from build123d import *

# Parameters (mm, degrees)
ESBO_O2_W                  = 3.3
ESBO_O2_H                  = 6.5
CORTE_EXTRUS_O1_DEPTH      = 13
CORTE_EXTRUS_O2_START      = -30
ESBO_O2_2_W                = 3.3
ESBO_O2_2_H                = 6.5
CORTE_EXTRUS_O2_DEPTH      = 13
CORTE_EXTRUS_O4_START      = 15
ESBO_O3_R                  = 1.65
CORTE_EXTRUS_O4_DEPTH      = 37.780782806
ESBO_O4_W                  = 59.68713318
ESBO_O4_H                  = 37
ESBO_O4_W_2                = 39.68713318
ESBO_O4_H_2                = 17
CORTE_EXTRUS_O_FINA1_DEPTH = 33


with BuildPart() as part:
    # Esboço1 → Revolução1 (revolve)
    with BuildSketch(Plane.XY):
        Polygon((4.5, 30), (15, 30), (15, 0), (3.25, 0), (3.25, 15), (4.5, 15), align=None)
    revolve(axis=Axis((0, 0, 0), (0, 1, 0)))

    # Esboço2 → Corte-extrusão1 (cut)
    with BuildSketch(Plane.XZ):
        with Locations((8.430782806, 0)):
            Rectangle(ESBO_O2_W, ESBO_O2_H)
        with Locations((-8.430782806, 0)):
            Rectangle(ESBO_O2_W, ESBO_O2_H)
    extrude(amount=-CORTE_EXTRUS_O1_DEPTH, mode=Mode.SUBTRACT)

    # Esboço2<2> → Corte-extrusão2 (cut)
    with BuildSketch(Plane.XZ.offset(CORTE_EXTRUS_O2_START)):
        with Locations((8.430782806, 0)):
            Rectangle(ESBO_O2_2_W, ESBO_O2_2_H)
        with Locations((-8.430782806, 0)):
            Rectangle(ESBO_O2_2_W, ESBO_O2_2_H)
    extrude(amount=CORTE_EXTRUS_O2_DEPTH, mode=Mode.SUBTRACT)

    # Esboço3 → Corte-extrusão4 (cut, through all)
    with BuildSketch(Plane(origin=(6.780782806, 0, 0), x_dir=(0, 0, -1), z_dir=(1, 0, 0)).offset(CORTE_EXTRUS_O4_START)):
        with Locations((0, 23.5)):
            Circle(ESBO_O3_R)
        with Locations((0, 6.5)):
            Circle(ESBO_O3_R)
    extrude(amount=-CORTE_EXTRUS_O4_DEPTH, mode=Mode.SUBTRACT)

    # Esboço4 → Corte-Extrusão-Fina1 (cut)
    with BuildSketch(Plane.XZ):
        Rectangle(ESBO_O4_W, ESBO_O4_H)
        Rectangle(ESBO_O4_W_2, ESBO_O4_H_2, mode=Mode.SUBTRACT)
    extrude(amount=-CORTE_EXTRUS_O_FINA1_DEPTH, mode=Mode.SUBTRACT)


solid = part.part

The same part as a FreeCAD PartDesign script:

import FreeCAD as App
import Part
import Sketcher

V = App.Vector

doc = App.newDocument("Part")
body = doc.addObject("PartDesign::Body", "Body")

sketch1 = doc.addObject("Sketcher::SketchObject", "Sketch")
body.addObject(sketch1)
sketch1.AttachmentSupport = (doc.XY_Plane, [""])
sketch1.MapMode = "FlatFace"
sketch1.addGeometry(Part.LineSegment(V(15, 30, 0), V(4.5, 30, 0)), False)
sketch1.addGeometry(Part.LineSegment(V(4.5, 30, 0), V(4.5, 15, 0)), False)
sketch1.addGeometry(Part.LineSegment(V(4.5, 15, 0), V(3.25, 15, 0)), False)
sketch1.addGeometry(Part.LineSegment(V(3.25, 15, 0), V(3.25, 0, 0)), False)
sketch1.addGeometry(Part.LineSegment(V(3.25, 0, 0), V(15, 0, 0)), False)
sketch1.addGeometry(Part.LineSegment(V(15, 0, 0), V(15, 30, 0)), False)
sketch1.addConstraint(Sketcher.Constraint("Coincident", 0, 2, 1, 1))
sketch1.addConstraint(Sketcher.Constraint("Coincident", 1, 2, 2, 1))
sketch1.addConstraint(Sketcher.Constraint("Coincident", 2, 2, 3, 1))
sketch1.addConstraint(Sketcher.Constraint("Coincident", 3, 2, 4, 1))
sketch1.addConstraint(Sketcher.Constraint("Coincident", 4, 2, 5, 1))
sketch1.addConstraint(Sketcher.Constraint("Coincident", 5, 2, 0, 1))
sketch1.addConstraint(Sketcher.Constraint("Horizontal", 0))
sketch1.addConstraint(Sketcher.Constraint("Vertical", 1))
sketch1.addConstraint(Sketcher.Constraint("Horizontal", 2))
sketch1.addConstraint(Sketcher.Constraint("Vertical", 3))
sketch1.addConstraint(Sketcher.Constraint("Horizontal", 4))
sketch1.addConstraint(Sketcher.Constraint("Vertical", 5))
sketch1.addConstraint(Sketcher.Constraint("PointOnObject", 3, 2, -1))
sketch1.addConstraint(Sketcher.Constraint("Equal", 1, 3))
sketch1.addConstraint(Sketcher.Constraint("DistanceY", 1, 2, 1, 1, 15.0))
sketch1.addConstraint(Sketcher.Constraint("DistanceX", 0, 2, 0, 1, 10.5))
sketch1.addConstraint(Sketcher.Constraint("DistanceX", -1, 1, 4, 2, 15.0))
sketch1.addConstraint(Sketcher.Constraint("DistanceX", 2, 2, 2, 1, 1.25))
revolution = doc.addObject("PartDesign::Revolution", "Revolution")
body.addObject(revolution)
revolution.Profile = sketch1
revolution.ReferenceAxis = (sketch1, ["V_Axis"])
revolution.Angle = 360

sketch2 = doc.addObject("Sketcher::SketchObject", "Sketch001")
body.addObject(sketch2)
sketch2.AttachmentSupport = (doc.XZ_Plane, [""])
sketch2.MapMode = "FlatFace"
sketch2.addGeometry(Part.LineSegment(V(6.780783, 3.25, 0), V(6.780783, -3.25, 0)), False)
sketch2.addGeometry(Part.LineSegment(V(6.780783, -3.25, 0), V(10.080783, -3.25, 0)), False)
sketch2.addGeometry(Part.LineSegment(V(10.080783, -3.25, 0), V(10.080783, 3.25, 0)), False)
sketch2.addGeometry(Part.LineSegment(V(10.080783, 3.25, 0), V(6.780783, 3.25, 0)), False)
sketch2.addGeometry(Part.LineSegment(V(-10.080783, 3.25, 0), V(-10.080783, -3.25, 0)), False)
sketch2.addGeometry(Part.LineSegment(V(-10.080783, -3.25, 0), V(-6.780783, -3.25, 0)), False)
sketch2.addGeometry(Part.LineSegment(V(-6.780783, -3.25, 0), V(-6.780783, 3.25, 0)), False)
sketch2.addGeometry(Part.LineSegment(V(-6.780783, 3.25, 0), V(-10.080783, 3.25, 0)), False)
sketch2.addConstraint(Sketcher.Constraint("Coincident", 0, 2, 1, 1))
sketch2.addConstraint(Sketcher.Constraint("Coincident", 1, 2, 2, 1))
sketch2.addConstraint(Sketcher.Constraint("Coincident", 2, 2, 3, 1))
sketch2.addConstraint(Sketcher.Constraint("Coincident", 3, 2, 0, 1))
sketch2.addConstraint(Sketcher.Constraint("Coincident", 4, 2, 5, 1))
sketch2.addConstraint(Sketcher.Constraint("Coincident", 5, 2, 6, 1))
sketch2.addConstraint(Sketcher.Constraint("Coincident", 6, 2, 7, 1))
sketch2.addConstraint(Sketcher.Constraint("Coincident", 7, 2, 4, 1))
sketch2.addConstraint(Sketcher.Constraint("Vertical", 0))
sketch2.addConstraint(Sketcher.Constraint("Horizontal", 1))
sketch2.addConstraint(Sketcher.Constraint("Vertical", 2))
sketch2.addConstraint(Sketcher.Constraint("Horizontal", 3))
sketch2.addConstraint(Sketcher.Constraint("Vertical", 4))
sketch2.addConstraint(Sketcher.Constraint("Horizontal", 5))
sketch2.addConstraint(Sketcher.Constraint("Vertical", 6))
sketch2.addConstraint(Sketcher.Constraint("Horizontal", 7))
sketch2.addConstraint(Sketcher.Constraint("Symmetric", 2, 2, 4, 2, -1, 1))
sketch2.addConstraint(Sketcher.Constraint("Symmetric", 0, 2, 6, 2, -1, 1))
sketch2.addConstraint(Sketcher.Constraint("Horizontal", 1, 2, 4, 2))
sketch2.addConstraint(Sketcher.Constraint("DistanceX", 1, 1, 1, 2, 3.3))
sketch2.addConstraint(Sketcher.Constraint("DistanceY", 0, 2, 0, 1, 6.5))
sketch2.addConstraint(Sketcher.Constraint("DistanceX", -1, 1, 0, 2, 6.780783))
pocket1 = doc.addObject("PartDesign::Pocket", "Pocket")
body.addObject(pocket1)
pocket1.Profile = sketch2
pocket1.Length = 13

sketch3 = doc.addObject("Sketcher::SketchObject", "Sketch002")
body.addObject(sketch3)
sketch3.AttachmentSupport = (doc.XZ_Plane, [""])
sketch3.MapMode = "FlatFace"
sketch3.AttachmentOffset = App.Placement(V(0, 0, -30), App.Rotation())
sketch3.addGeometry(Part.LineSegment(V(6.780783, 3.25, 0), V(6.780783, -3.25, 0)), False)
sketch3.addGeometry(Part.LineSegment(V(6.780783, -3.25, 0), V(10.080783, -3.25, 0)), False)
sketch3.addGeometry(Part.LineSegment(V(10.080783, -3.25, 0), V(10.080783, 3.25, 0)), False)
sketch3.addGeometry(Part.LineSegment(V(10.080783, 3.25, 0), V(6.780783, 3.25, 0)), False)
sketch3.addGeometry(Part.LineSegment(V(-10.080783, 3.25, 0), V(-10.080783, -3.25, 0)), False)
sketch3.addGeometry(Part.LineSegment(V(-10.080783, -3.25, 0), V(-6.780783, -3.25, 0)), False)
sketch3.addGeometry(Part.LineSegment(V(-6.780783, -3.25, 0), V(-6.780783, 3.25, 0)), False)
sketch3.addGeometry(Part.LineSegment(V(-6.780783, 3.25, 0), V(-10.080783, 3.25, 0)), False)
sketch3.addConstraint(Sketcher.Constraint("Coincident", 0, 2, 1, 1))
sketch3.addConstraint(Sketcher.Constraint("Coincident", 1, 2, 2, 1))
sketch3.addConstraint(Sketcher.Constraint("Coincident", 2, 2, 3, 1))
sketch3.addConstraint(Sketcher.Constraint("Coincident", 3, 2, 0, 1))
sketch3.addConstraint(Sketcher.Constraint("Coincident", 4, 2, 5, 1))
sketch3.addConstraint(Sketcher.Constraint("Coincident", 5, 2, 6, 1))
sketch3.addConstraint(Sketcher.Constraint("Coincident", 6, 2, 7, 1))
sketch3.addConstraint(Sketcher.Constraint("Coincident", 7, 2, 4, 1))
sketch3.addConstraint(Sketcher.Constraint("Vertical", 0))
sketch3.addConstraint(Sketcher.Constraint("Horizontal", 1))
sketch3.addConstraint(Sketcher.Constraint("Vertical", 2))
sketch3.addConstraint(Sketcher.Constraint("Horizontal", 3))
sketch3.addConstraint(Sketcher.Constraint("Vertical", 4))
sketch3.addConstraint(Sketcher.Constraint("Horizontal", 5))
sketch3.addConstraint(Sketcher.Constraint("Vertical", 6))
sketch3.addConstraint(Sketcher.Constraint("Horizontal", 7))
sketch3.addConstraint(Sketcher.Constraint("Symmetric", 2, 2, 4, 2, -1, 1))
sketch3.addConstraint(Sketcher.Constraint("Symmetric", 0, 2, 6, 2, -1, 1))
sketch3.addConstraint(Sketcher.Constraint("Horizontal", 1, 2, 4, 2))
sketch3.addConstraint(Sketcher.Constraint("DistanceX", 1, 1, 1, 2, 3.3))
sketch3.addConstraint(Sketcher.Constraint("DistanceY", 0, 2, 0, 1, 6.5))
sketch3.addConstraint(Sketcher.Constraint("DistanceX", -1, 1, 0, 2, 6.780783))
pocket2 = doc.addObject("PartDesign::Pocket", "Pocket001")
body.addObject(pocket2)
pocket2.Profile = sketch3
pocket2.Length = 13
pocket2.Reversed = True

sketch4 = doc.addObject("Sketcher::SketchObject", "Sketch003")
body.addObject(sketch4)
sketch4.AttachmentSupport = (doc.YZ_Plane, [""])
sketch4.MapMode = "FlatFace"
sketch4.AttachmentOffset = App.Placement(V(0, 0, 21.780783), App.Rotation())
sketch4.addGeometry(Part.Circle(V(23.5, 0, 0), V(0, 0, 1), 1.65), False)
sketch4.addGeometry(Part.Circle(V(6.5, 0, 0), V(0, 0, 1), 1.65), False)
sketch4.addConstraint(Sketcher.Constraint("Equal", 0, 1))
sketch4.addConstraint(Sketcher.Constraint("PointOnObject", 0, 3, -1))
sketch4.addConstraint(Sketcher.Constraint("PointOnObject", 1, 3, -1))
sketch4.addConstraint(Sketcher.Constraint("Diameter", 0, 3.3))
sketch4.addConstraint(Sketcher.Constraint("DistanceX", 1, 3, 0, 3, 17.0))
sketch4.addConstraint(Sketcher.Constraint("DistanceX", -1, 1, 0, 3, 23.5))
pocket3 = doc.addObject("PartDesign::Pocket", "Pocket002")
body.addObject(pocket3)
pocket3.Profile = sketch4
pocket3.Type = "ThroughAll"

sketch5 = doc.addObject("Sketcher::SketchObject", "Sketch004")
body.addObject(sketch5)
sketch5.AttachmentSupport = (doc.XZ_Plane, [""])
sketch5.MapMode = "FlatFace"
sketch5.addGeometry(Part.LineSegment(V(-29.843567, 18.5, 0), V(-29.843567, -18.5, 0)), False)
sketch5.addGeometry(Part.LineSegment(V(-29.843567, -18.5, 0), V(29.843567, -18.5, 0)), False)
sketch5.addGeometry(Part.LineSegment(V(29.843567, -18.5, 0), V(29.843567, 18.5, 0)), False)
sketch5.addGeometry(Part.LineSegment(V(29.843567, 18.5, 0), V(-29.843567, 18.5, 0)), False)
sketch5.addGeometry(Part.LineSegment(V(19.843567, -8.5, 0), V(-19.843567, -8.5, 0)), False)
sketch5.addGeometry(Part.LineSegment(V(-19.843567, -8.5, 0), V(-19.843567, 8.5, 0)), False)
sketch5.addGeometry(Part.LineSegment(V(-19.843567, 8.5, 0), V(19.843567, 8.5, 0)), False)
sketch5.addGeometry(Part.LineSegment(V(19.843567, 8.5, 0), V(19.843567, -8.5, 0)), False)
sketch5.addConstraint(Sketcher.Constraint("Coincident", 0, 2, 1, 1))
sketch5.addConstraint(Sketcher.Constraint("Coincident", 1, 2, 2, 1))
sketch5.addConstraint(Sketcher.Constraint("Coincident", 2, 2, 3, 1))
sketch5.addConstraint(Sketcher.Constraint("Coincident", 3, 2, 0, 1))
sketch5.addConstraint(Sketcher.Constraint("Coincident", 4, 2, 5, 1))
sketch5.addConstraint(Sketcher.Constraint("Coincident", 5, 2, 6, 1))
sketch5.addConstraint(Sketcher.Constraint("Coincident", 6, 2, 7, 1))
sketch5.addConstraint(Sketcher.Constraint("Coincident", 7, 2, 4, 1))
sketch5.addConstraint(Sketcher.Constraint("Vertical", 0))
sketch5.addConstraint(Sketcher.Constraint("Horizontal", 1))
sketch5.addConstraint(Sketcher.Constraint("Vertical", 2))
sketch5.addConstraint(Sketcher.Constraint("Horizontal", 3))
sketch5.addConstraint(Sketcher.Constraint("Horizontal", 4))
sketch5.addConstraint(Sketcher.Constraint("Vertical", 5))
sketch5.addConstraint(Sketcher.Constraint("Horizontal", 6))
sketch5.addConstraint(Sketcher.Constraint("Vertical", 7))
sketch5.addConstraint(Sketcher.Constraint("Symmetric", 0, 2, 2, 2, -1, 1))
sketch5.addConstraint(Sketcher.Constraint("Symmetric", 4, 2, 6, 2, -1, 1))
sketch5.addConstraint(Sketcher.Constraint("DistanceY", 0, 2, 0, 1, 37.0))
sketch5.addConstraint(Sketcher.Constraint("DistanceY", 5, 1, 5, 2, 17.0))
sketch5.addConstraint(Sketcher.Constraint("DistanceX", 0, 2, 4, 2, 10.0))
sketch5.addConstraint(Sketcher.Constraint("DistanceX", 1, 1, 1, 2, 59.687133))
pocket4 = doc.addObject("PartDesign::Pocket", "Pocket003")
body.addObject(pocket4)
pocket4.Profile = sketch5
pocket4.Length = 33

doc.recompute()
